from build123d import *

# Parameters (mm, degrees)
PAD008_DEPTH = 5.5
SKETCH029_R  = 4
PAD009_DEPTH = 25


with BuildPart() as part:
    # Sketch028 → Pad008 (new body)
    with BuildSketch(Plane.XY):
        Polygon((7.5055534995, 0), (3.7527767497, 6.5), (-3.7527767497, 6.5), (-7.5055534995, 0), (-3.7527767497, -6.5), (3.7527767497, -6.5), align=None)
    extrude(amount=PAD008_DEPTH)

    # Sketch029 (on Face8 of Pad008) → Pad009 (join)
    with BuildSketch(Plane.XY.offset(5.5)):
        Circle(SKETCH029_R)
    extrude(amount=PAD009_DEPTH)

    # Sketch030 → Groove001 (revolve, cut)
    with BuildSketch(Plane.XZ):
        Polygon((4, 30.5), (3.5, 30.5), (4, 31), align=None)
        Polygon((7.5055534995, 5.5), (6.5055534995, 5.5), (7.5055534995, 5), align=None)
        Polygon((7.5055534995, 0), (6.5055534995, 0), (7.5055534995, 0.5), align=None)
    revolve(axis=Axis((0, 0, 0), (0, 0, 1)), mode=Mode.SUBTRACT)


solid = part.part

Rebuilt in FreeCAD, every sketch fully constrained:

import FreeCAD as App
import Part
import Sketcher
from FreeCAD import Vector
Q = App.Units.Quantity

doc = App.newDocument("Part")
body = doc.addObject("PartDesign::Body", "Body")

# Sketch on XY plane
sketch1 = body.newObject("Sketcher::SketchObject", "Sketch")
sketch1.AttachmentSupport = (doc.getObject("XY_Plane"), [""])
sketch1.MapMode = "FlatFace"
sketch1.addGeometry([
    Part.LineSegment(Vector(8, 0, 0), Vector(4, 6, 0)),  # 0
    Part.LineSegment(Vector(4, 6, 0), Vector(-4, 6, 0)),  # 1
    Part.LineSegment(Vector(-4, 6, 0), Vector(-8, 0, 0)),  # 2
    Part.LineSegment(Vector(-8, 0, 0), Vector(-4, -6, 0)),  # 3
    Part.LineSegment(Vector(-4, -6, 0), Vector(4, -6, 0)),  # 4
    Part.LineSegment(Vector(4, -6, 0), Vector(8, 0, 0)),  # 5
], False)
sketch1.addConstraint([
    Sketcher.Constraint("Coincident", 0, 2, 1, 1),
    Sketcher.Constraint("Coincident", 1, 2, 2, 1),
    Sketcher.Constraint("Coincident", 2, 2, 3, 1),
    Sketcher.Constraint("Coincident", 3, 2, 4, 1),
    Sketcher.Constraint("Coincident", 4, 2, 5, 1),
    Sketcher.Constraint("Coincident", 5, 2, 0, 1),
    Sketcher.Constraint("Horizontal", 1),
    Sketcher.Constraint("Horizontal", 4),
    Sketcher.Constraint("Symmetric", 0, 2, 3, 2, -1, 1),
    Sketcher.Constraint("Symmetric", 2, 2, 5, 2, -1, 1),
    Sketcher.Constraint("PointOnObject", 2, 2, -1),
    Sketcher.Constraint("Parallel", 2, 5),
    Sketcher.Constraint("Vertical", 1, 2, 3, 2),
    Sketcher.Constraint("Angle", 0, Q("120 deg")),
    Sketcher.Constraint("DistanceY", 3, 2, 1, 2, Q("13 mm")),
    Sketcher.Constraint("DistanceX", 1, 2, 1, 1, Q("7.505554 mm")),
])
pad1 = body.newObject("PartDesign::Pad", "Pad")
pad1.Profile = sketch1
pad1.Length = 5.5

# Sketch on XY plane
sketch2 = body.newObject("Sketcher::SketchObject", "Sketch001")
sketch2.AttachmentSupport = (doc.getObject("XY_Plane"), [""])
sketch2.MapMode = "FlatFace"
sketch2.AttachmentOffset = App.Placement(Vector(0, 0, 5.5), App.Rotation())
sketch2.addGeometry(Part.Circle(Vector(0, 0, 0), Vector(0, 0, 1), 4), False)
sketch2.addConstraint([
    Sketcher.Constraint("Coincident", 0, 3, -1, 1),
    Sketcher.Constraint("Diameter", 0, Q("8 mm")),
])
pad2 = body.newObject("PartDesign::Pad", "Pad001")
pad2.Profile = sketch2
pad2.Length = 25

# Sketch on XZ plane
sketch3 = body.newObject("Sketcher::SketchObject", "Sketch002")
sketch3.AttachmentSupport = (doc.getObject("XZ_Plane"), [""])
sketch3.MapMode = "FlatFace"
sketch3.addGeometry([
    Part.LineSegment(Vector(3.5, 30.5, 0), Vector(4, 30.5, 0)),  # 0
    Part.LineSegment(Vector(4, 30.5, 0), Vector(4, 31, 0)),  # 1
    Part.LineSegment(Vector(4, 31, 0), Vector(3.5, 30.5, 0)),  # 2
    Part.LineSegment(Vector(7.5, 5.5, 0), Vector(6.5, 5.5, 0)),  # 3
    Part.LineSegment(Vector(6.5, 5.5, 0), Vector(7.5, 5, 0)),  # 4
    Part.LineSegment(Vector(7.5, 5, 0), Vector(7.5, 5.5, 0)),  # 5
    Part.LineSegment(Vector(6.5, 0, 0), Vector(7.5, 0, 0)),  # 6
    Part.LineSegment(Vector(7.5, 0, 0), Vector(7.5, 0.5, 0)),  # 7
    Part.LineSegment(Vector(7.5, 0.5, 0), Vector(6.5, 0, 0)),  # 8
], False)
sketch3.addConstraint([
    Sketcher.Constraint("Coincident", 0, 2, 1, 1),
    Sketcher.Constraint("Coincident", 1, 2, 2, 1),
    Sketcher.Constraint("Coincident", 2, 2, 0, 1),
    Sketcher.Constraint("Coincident", 3, 2, 4, 1),
    Sketcher.Constraint("Coincident", 4, 2, 5, 1),
    Sketcher.Constraint("Coincident", 5, 2, 3, 1),
    Sketcher.Constraint("Coincident", 6, 2, 7, 1),
    Sketcher.Constraint("Coincident", 7, 2, 8, 1),
    Sketcher.Constraint("Coincident", 8, 2, 6, 1),
    Sketcher.Constraint("Horizontal", 0),
    Sketcher.Constraint("Vertical", 1),
    Sketcher.Constraint("Horizontal", 3),
    Sketcher.Constraint("Vertical", 5),
    Sketcher.Constraint("Horizontal", 6),
    Sketcher.Constraint("Vertical", 7),
    Sketcher.Constraint("PointOnObject", 6, 2, -1),
    Sketcher.Constraint("Vertical", 5, 2, 6, 2),
    Sketcher.Constraint("Vertical", 3, 2, 8, 2),
    Sketcher.Constraint("Equal", 0, 1),
    Sketcher.Constraint("Equal", 1, 5),
    Sketcher.Constraint("Equal", 5, 7),
    Sketcher.Constraint("DistanceX", 3, 2, 3, 1, Q("1 mm")),
    Sketcher.Constraint("DistanceX", 0, 1, 0, 2, Q("0.5 mm")),
    Sketcher.Constraint("DistanceX", -1, 1, 0, 2, Q("4 mm")),
    Sketcher.Constraint("DistanceY", -1, 1, 1, 2, Q("31 mm")),
    Sketcher.Constraint("DistanceY", -1, 1, 4, 2, Q("5 mm")),
    Sketcher.Constraint("DistanceX", -1, 1, 3, 2, Q("6.505554 mm")),
])
groove = body.newObject("PartDesign::Groove", "Groove")
groove.Profile = sketch3
groove.ReferenceAxis = (sketch3, ["V_Axis"])
groove.Angle = 360

doc.recompute()
